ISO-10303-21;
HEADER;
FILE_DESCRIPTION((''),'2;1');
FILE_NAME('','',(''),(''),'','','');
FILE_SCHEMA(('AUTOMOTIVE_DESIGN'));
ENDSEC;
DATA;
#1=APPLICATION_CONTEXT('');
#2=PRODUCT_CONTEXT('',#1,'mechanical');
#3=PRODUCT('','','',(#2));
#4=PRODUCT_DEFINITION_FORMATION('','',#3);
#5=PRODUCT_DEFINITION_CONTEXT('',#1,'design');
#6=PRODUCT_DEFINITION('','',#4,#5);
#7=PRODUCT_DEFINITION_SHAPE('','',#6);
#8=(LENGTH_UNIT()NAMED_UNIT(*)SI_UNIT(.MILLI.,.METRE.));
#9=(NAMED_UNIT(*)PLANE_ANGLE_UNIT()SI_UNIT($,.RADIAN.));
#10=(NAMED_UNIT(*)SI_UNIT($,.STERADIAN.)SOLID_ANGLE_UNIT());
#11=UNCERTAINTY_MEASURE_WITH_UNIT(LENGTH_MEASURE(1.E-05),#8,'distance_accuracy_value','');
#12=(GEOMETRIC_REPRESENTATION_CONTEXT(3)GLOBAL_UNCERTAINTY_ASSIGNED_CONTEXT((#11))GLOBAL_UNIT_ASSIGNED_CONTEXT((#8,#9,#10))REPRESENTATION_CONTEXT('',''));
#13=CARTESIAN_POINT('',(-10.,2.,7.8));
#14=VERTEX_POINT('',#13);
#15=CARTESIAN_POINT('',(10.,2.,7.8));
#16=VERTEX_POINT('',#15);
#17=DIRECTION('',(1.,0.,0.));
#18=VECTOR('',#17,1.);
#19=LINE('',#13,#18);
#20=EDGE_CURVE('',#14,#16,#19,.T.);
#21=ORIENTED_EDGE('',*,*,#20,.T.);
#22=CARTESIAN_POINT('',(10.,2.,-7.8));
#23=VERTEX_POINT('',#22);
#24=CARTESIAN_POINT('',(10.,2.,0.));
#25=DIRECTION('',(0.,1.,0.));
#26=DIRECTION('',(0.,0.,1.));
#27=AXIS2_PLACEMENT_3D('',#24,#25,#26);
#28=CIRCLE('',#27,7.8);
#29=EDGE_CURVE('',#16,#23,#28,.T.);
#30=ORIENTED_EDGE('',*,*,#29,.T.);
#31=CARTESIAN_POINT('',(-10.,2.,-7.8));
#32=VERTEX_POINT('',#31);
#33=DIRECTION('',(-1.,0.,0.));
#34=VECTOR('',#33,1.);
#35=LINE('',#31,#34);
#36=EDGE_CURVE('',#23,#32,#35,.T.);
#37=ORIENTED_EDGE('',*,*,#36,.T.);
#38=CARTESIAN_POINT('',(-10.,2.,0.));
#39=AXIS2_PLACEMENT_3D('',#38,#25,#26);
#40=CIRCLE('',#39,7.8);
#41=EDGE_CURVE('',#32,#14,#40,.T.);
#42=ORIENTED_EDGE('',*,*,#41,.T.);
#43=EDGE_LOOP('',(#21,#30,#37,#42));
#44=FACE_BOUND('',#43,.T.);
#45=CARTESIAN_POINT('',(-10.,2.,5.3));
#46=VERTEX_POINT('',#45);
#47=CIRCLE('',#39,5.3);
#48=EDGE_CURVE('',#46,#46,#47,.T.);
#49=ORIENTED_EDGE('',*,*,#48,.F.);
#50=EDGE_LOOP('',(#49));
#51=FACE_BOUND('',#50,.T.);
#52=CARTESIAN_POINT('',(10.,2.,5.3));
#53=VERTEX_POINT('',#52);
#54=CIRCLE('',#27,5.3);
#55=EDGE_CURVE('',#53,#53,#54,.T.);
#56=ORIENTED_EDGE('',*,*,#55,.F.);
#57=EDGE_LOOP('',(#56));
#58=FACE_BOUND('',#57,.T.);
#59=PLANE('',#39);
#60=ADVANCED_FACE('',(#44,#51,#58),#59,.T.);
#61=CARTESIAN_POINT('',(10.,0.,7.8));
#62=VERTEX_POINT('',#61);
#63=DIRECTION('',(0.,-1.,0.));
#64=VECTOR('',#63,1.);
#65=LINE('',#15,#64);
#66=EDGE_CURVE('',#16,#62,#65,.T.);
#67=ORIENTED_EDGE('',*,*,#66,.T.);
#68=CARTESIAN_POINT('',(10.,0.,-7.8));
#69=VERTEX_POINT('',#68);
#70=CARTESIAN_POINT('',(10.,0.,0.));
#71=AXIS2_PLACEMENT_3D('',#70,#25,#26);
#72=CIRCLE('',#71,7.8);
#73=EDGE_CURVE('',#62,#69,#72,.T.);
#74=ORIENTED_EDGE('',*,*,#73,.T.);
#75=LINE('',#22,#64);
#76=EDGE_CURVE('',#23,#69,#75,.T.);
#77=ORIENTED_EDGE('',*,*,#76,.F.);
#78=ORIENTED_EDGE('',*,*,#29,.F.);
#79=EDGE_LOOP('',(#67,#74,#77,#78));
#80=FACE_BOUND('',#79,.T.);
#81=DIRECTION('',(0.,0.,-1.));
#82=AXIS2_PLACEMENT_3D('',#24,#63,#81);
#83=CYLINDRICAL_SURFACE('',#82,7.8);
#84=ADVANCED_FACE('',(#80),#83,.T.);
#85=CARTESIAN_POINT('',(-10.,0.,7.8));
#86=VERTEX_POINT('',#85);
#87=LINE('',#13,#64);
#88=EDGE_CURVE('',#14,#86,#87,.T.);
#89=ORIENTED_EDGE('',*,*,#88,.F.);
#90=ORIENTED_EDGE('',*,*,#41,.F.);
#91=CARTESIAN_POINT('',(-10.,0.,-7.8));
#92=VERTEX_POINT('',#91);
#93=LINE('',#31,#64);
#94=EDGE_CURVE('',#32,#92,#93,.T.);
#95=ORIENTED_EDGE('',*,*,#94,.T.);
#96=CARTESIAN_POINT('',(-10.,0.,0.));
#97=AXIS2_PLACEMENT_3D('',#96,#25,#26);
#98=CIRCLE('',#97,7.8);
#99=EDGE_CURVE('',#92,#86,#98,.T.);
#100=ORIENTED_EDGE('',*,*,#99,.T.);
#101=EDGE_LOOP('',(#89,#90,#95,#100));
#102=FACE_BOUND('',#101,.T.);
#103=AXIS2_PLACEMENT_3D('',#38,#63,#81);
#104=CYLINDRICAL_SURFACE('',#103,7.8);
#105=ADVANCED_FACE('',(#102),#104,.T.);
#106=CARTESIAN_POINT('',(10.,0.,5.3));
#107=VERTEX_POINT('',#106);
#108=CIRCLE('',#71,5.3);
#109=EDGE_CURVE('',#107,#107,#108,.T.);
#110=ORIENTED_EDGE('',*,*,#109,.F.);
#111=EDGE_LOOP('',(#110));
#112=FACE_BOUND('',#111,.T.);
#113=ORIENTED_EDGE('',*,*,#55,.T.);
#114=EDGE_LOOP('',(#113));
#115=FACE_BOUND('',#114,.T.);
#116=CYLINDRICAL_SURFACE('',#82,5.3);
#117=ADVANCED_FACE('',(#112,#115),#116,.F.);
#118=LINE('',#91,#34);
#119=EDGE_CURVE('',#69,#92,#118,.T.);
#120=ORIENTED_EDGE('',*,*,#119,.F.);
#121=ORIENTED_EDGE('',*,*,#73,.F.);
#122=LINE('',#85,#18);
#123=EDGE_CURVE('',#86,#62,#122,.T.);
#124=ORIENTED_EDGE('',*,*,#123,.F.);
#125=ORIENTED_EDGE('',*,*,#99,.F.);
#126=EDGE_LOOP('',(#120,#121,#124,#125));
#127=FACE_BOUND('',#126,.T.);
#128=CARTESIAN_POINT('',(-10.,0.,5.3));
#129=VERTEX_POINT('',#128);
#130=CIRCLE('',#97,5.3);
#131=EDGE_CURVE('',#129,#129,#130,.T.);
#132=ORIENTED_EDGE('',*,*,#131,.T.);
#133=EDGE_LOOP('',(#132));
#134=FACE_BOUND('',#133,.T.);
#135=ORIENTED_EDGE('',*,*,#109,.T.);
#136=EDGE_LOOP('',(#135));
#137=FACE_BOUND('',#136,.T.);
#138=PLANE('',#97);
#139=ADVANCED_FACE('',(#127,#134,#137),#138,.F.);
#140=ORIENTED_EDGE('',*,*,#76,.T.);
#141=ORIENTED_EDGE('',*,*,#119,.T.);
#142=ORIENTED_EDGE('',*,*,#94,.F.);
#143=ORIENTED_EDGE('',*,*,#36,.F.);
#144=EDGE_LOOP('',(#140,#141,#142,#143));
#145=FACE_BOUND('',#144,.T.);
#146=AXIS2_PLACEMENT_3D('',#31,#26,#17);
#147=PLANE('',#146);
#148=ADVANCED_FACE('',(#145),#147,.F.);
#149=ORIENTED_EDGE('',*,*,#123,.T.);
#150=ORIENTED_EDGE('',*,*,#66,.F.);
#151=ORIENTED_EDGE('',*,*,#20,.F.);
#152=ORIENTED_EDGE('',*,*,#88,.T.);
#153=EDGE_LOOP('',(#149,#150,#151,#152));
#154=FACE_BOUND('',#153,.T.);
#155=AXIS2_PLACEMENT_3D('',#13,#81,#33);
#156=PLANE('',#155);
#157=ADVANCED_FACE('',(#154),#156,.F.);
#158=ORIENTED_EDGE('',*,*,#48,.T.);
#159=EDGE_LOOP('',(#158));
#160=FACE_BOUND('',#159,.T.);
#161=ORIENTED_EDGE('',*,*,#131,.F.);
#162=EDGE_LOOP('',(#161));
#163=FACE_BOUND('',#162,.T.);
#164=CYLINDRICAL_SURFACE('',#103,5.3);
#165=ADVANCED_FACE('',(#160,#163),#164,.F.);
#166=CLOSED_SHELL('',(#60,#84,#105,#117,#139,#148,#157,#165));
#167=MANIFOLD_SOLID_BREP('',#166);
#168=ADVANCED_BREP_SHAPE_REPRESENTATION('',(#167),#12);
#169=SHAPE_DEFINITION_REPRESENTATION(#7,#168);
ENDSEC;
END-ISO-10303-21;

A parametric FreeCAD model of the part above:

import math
import FreeCAD as App
import Part
import Sketcher

doc = App.newDocument("Part")
body = doc.addObject("PartDesign::Body", "Body")

# Sketch on XZ plane
sketch1 = body.newObject("Sketcher::SketchObject", "Sketch")
sketch1.AttachmentSupport = (doc.getObject("XZ_Plane"), [""])
sketch1.MapMode = "FlatFace"
sketch1.addGeometry(Part.LineSegment(App.Vector(10, -7.8, 0), App.Vector(-10, -7.8, 0)), False)
sketch1.addGeometry(Part.ArcOfCircle(Part.Circle(App.Vector(-10, 0, 0), App.Vector(0, 0, 1), 7.8), math.radians(90), math.radians(270)), False)
sketch1.addGeometry(Part.LineSegment(App.Vector(-10, 7.8, 0), App.Vector(10, 7.8, 0)), False)
sketch1.addGeometry(Part.ArcOfCircle(Part.Circle(App.Vector(10, 0, 0), App.Vector(0, 0, 1), 7.8), math.radians(-90), math.radians(90)), False)
sketch1.addGeometry(Part.Circle(App.Vector(10, 0, 0), App.Vector(0, 0, 1), 5.3), False)
sketch1.addGeometry(Part.Circle(App.Vector(-10, 0, 0), App.Vector(0, 0, 1), 5.3), False)
sketch1.addConstraint(Sketcher.Constraint("Tangent", 0, 2, 1, 2))
sketch1.addConstraint(Sketcher.Constraint("Tangent", 1, 1, 2, 1))
sketch1.addConstraint(Sketcher.Constraint("Tangent", 2, 2, 3, 2))
sketch1.addConstraint(Sketcher.Constraint("Tangent", 3, 1, 0, 1))
sketch1.addConstraint(Sketcher.Constraint("Horizontal", 0))
sketch1.addConstraint(Sketcher.Constraint("Horizontal", 2))
sketch1.addConstraint(Sketcher.Constraint("Coincident", 4, 3, 3, 3))
sketch1.addConstraint(Sketcher.Constraint("Coincident", 5, 3, 1, 3))
sketch1.addConstraint(Sketcher.Constraint("Equal", 4, 5))
sketch1.addConstraint(Sketcher.Constraint("Symmetric", 1, 3, 3, 3, -1, 1))
sketch1.addConstraint(Sketcher.Constraint("Diameter", 4, 10.6))
sketch1.addConstraint(Sketcher.Constraint("Radius", 1, 7.8))
sketch1.addConstraint(Sketcher.Constraint("DistanceX", 0, 2, 0, 1, 20.0))
pad1 = body.newObject("PartDesign::Pad", "Pad")
pad1.Profile = sketch1
pad1.Length = 2
pad1.Reversed = True

doc.recompute()
